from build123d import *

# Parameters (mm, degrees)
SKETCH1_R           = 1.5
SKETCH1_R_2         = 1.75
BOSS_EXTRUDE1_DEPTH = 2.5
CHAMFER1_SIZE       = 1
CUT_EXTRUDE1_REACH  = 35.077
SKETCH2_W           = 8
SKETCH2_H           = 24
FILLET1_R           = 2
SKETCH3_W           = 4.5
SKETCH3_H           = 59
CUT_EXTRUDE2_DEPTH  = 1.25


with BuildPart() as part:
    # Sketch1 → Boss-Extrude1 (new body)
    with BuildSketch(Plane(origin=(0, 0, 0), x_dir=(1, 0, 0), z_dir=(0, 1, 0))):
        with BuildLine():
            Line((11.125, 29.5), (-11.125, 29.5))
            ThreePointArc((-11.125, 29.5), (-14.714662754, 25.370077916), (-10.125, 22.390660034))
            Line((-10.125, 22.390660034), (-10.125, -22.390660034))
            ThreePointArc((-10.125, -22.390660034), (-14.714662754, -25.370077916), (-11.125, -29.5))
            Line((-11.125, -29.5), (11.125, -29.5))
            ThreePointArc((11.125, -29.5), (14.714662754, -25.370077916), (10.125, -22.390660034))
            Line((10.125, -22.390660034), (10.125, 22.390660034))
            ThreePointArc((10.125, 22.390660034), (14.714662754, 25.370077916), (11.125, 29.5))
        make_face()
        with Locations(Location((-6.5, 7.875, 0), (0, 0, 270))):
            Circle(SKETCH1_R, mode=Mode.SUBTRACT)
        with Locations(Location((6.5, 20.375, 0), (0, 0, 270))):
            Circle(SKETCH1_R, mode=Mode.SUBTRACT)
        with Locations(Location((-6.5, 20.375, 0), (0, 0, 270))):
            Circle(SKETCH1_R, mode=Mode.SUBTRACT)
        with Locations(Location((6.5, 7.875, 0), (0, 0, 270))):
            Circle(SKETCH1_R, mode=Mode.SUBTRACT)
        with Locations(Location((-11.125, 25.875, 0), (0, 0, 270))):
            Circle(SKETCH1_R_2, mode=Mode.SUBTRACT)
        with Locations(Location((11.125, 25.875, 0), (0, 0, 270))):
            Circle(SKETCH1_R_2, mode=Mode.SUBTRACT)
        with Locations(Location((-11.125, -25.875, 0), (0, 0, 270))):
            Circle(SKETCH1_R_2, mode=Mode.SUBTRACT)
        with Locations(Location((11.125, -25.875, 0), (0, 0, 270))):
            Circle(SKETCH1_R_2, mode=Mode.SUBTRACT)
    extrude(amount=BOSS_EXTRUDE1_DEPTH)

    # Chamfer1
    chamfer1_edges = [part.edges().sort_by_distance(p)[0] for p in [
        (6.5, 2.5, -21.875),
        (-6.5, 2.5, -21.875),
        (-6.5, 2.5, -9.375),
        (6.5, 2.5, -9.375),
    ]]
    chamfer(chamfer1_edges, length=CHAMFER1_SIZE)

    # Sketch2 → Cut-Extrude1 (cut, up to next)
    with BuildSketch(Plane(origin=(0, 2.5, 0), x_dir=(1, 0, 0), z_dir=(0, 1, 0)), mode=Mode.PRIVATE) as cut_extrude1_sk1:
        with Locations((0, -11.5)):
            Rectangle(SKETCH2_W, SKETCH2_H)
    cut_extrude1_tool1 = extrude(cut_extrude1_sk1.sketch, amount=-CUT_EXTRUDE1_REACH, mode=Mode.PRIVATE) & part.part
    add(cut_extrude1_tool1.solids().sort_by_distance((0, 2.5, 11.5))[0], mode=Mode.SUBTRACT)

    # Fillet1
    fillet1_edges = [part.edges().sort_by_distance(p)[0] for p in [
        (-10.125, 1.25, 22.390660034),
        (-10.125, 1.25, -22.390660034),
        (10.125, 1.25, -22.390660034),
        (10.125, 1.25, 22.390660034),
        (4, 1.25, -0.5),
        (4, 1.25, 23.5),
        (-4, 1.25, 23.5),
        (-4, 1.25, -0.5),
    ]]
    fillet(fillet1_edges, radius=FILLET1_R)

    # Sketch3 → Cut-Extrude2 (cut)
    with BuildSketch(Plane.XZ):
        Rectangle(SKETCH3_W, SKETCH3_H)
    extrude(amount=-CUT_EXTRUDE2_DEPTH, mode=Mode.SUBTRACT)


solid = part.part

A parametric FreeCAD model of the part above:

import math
import FreeCAD as App
import Part
import Sketcher
Q = App.Units.Quantity


def edges_at(feature, points):
    """Names of the edges that pass closest to the given points."""
    edges = feature.Shape.Edges
    near = lambda p: min(range(len(edges)), key=lambda i: edges[i].distToShape(Part.Vertex(*p))[0])
    return sorted({f"Edge{near(p) + 1}" for p in points})

doc = App.newDocument("Part")
body = doc.addObject("PartDesign::Body", "Body")

# Sketch on XZ plane
sketch1 = doc.addObject("Sketcher::SketchObject", "Sketch")
body.addObject(sketch1)
sketch1.AttachmentSupport = (doc.XZ_Plane, [""])
sketch1.MapMode = "FlatFace"
sketch1.addGeometry(Part.LineSegment(App.Vector(11.1, -29.5, 0), App.Vector(-11.1, -29.5, 0)), False)
sketch1.addGeometry(Part.ArcOfCircle(Part.Circle(App.Vector(-11.1, -25.9, 0), App.Vector(0, 0, 1), 3.6), math.radians(74), math.radians(270)), False)
sketch1.addGeometry(Part.LineSegment(App.Vector(-10.1, -22.4, 0), App.Vector(-10.1, 22.4, 0)), False)
sketch1.addGeometry(Part.ArcOfCircle(Part.Circle(App.Vector(-11.1, 25.9, 0), App.Vector(0, 0, 1), 3.6), math.radians(90), math.radians(286)), False)
sketch1.addGeometry(Part.LineSegment(App.Vector(-11.1, 29.5, 0), App.Vector(11.1, 29.5, 0)), False)
sketch1.addGeometry(Part.ArcOfCircle(Part.Circle(App.Vector(11.1, 25.9, 0), App.Vector(0, 0, 1), 3.6), math.radians(-106), math.radians(90)), False)
sketch1.addGeometry(Part.LineSegment(App.Vector(10.1, 22.4, 0), App.Vector(10.1, -22.4, 0)), False)
sketch1.addGeometry(Part.ArcOfCircle(Part.Circle(App.Vector(11.1, -25.9, 0), App.Vector(0, 0, 1), 3.6), math.radians(-90), math.radians(106)), False)
sketch1.addGeometry(Part.Circle(App.Vector(-11.1, 25.9, 0), App.Vector(0, 0, 1), 1.8), False)
sketch1.addGeometry(Part.Circle(App.Vector(11.1, 25.9, 0), App.Vector(0, 0, 1), 1.8), False)
sketch1.addGeometry(Part.Circle(App.Vector(-6.5, -7.9, 0), App.Vector(0, 0, 1), 1.5), False)
sketch1.addGeometry(Part.Circle(App.Vector(-6.5, -20.4, 0), App.Vector(0, 0, 1), 1.5), False)
sketch1.addGeometry(Part.Circle(App.Vector(-11.1, -25.9, 0), App.Vector(0, 0, 1), 1.8), False)
sketch1.addGeometry(Part.Circle(App.Vector(6.5, -7.9, 0), App.Vector(0, 0, 1), 1.5), False)
sketch1.addGeometry(Part.Circle(App.Vector(6.5, -20.4, 0), App.Vector(0, 0, 1), 1.5), False)
sketch1.addGeometry(Part.Circle(App.Vector(11.1, -25.9, 0), App.Vector(0, 0, 1), 1.8), False)
sketch1.addConstraint(Sketcher.Constraint("Tangent", 0, 2, 1, 2))
sketch1.addConstraint(Sketcher.Constraint("Coincident", 1, 1, 2, 1))
sketch1.addConstraint(Sketcher.Constraint("Coincident", 2, 2, 3, 2))
sketch1.addConstraint(Sketcher.Constraint("Tangent", 3, 1, 4, 1))
sketch1.addConstraint(Sketcher.Constraint("Tangent", 4, 2, 5, 2))
sketch1.addConstraint(Sketcher.Constraint("Coincident", 5, 1, 6, 1))
sketch1.addConstraint(Sketcher.Constraint("Coincident", 6, 2, 7, 2))
sketch1.addConstraint(Sketcher.Constraint("Tangent", 7, 1, 0, 1))
sketch1.addConstraint(Sketcher.Constraint("Horizontal", 0))
sketch1.addConstraint(Sketcher.Constraint("Vertical", 2))
sketch1.addConstraint(Sketcher.Constraint("Horizontal", 4))
sketch1.addConstraint(Sketcher.Constraint("Vertical", 6))
sketch1.addConstraint(Sketcher.Constraint("Coincident", 8, 3, 3, 3))
sketch1.addConstraint(Sketcher.Constraint("Coincident", 9, 3, 5, 3))
sketch1.addConstraint(Sketcher.Constraint("Coincident", 12, 3, 1, 3))
sketch1.addConstraint(Sketcher.Constraint("Coincident", 15, 3, 7, 3))
sketch1.addConstraint(Sketcher.Constraint("Equal", 1, 3))
sketch1.addConstraint(Sketcher.Constraint("Equal", 3, 5))
sketch1.addConstraint(Sketcher.Constraint("Equal", 5, 7))
sketch1.addConstraint(Sketcher.Constraint("Equal", 8, 9))
sketch1.addConstraint(Sketcher.Constraint("Equal", 10, 11))
sketch1.addConstraint(Sketcher.Constraint("Equal", 9, 12))
sketch1.addConstraint(Sketcher.Constraint("Equal", 11, 13))
sketch1.addConstraint(Sketcher.Constraint("Equal", 13, 14))
sketch1.addConstraint(Sketcher.Constraint("Equal", 12, 15))
sketch1.addConstraint(Sketcher.Constraint("Symmetric", 1, 3, 5, 3, -1, 1))
sketch1.addConstraint(Sketcher.Constraint("Symmetric", 2, 2, 6, 2, -1, 1))
sketch1.addConstraint(Sketcher.Constraint("Symmetric", 10, 3, 13, 3, -2))
sketch1.addConstraint(Sketcher.Constraint("Symmetric", 11, 3, 14, 3, -2))
sketch1.addConstraint(Sketcher.Constraint("Horizontal", 2, 2, 5, 1))
sketch1.addConstraint(Sketcher.Constraint("Vertical", 10, 3, 11, 3))
sketch1.addConstraint(Sketcher.Constraint("Diameter", 10, Q("3 mm")))
sketch1.addConstraint(Sketcher.Constraint("Diameter", 8, Q("3.5 mm")))
sketch1.addConstraint(Sketcher.Constraint("Radius", 1, Q("3.625 mm")))
sketch1.addConstraint(Sketcher.Constraint("DistanceY", 1, 3, 10, 3, Q("18 mm")))
sketch1.addConstraint(Sketcher.Constraint("DistanceX", 10, 3, 13, 3, Q("13 mm")))
sketch1.addConstraint(Sketcher.Constraint("DistanceX", 1, 3, 1, 1, Q("1 mm")))
sketch1.addConstraint(Sketcher.Constraint("DistanceX", 0, 2, 0, 1, Q("22.25 mm")))
sketch1.addConstraint(Sketcher.Constraint("DistanceY", 0, 2, -1, 1, Q("29.5 mm")))
sketch1.addConstraint(Sketcher.Constraint("DistanceY", 1, 3, 11, 3, Q("5.5 mm")))
pad1 = doc.addObject("PartDesign::Pad", "Pad")
body.addObject(pad1)
pad1.Profile = sketch1
pad1.Length = 2.5
pad1.Reversed = True
doc.recompute()

chamfer = doc.addObject("PartDesign::Chamfer", "Chamfer")
body.addObject(chamfer)
chamfer.Base = (pad1, edges_at(pad1, [
    (6.5, 2.5, -21.875),
    (-6.5, 2.5, -21.875),
    (-6.5, 2.5, -9.375),
    (6.5, 2.5, -9.375),
]))
chamfer.Size = 1

# Sketch on XZ plane
sketch2 = doc.addObject("Sketcher::SketchObject", "Sketch001")
body.addObject(sketch2)
sketch2.AttachmentSupport = (doc.XZ_Plane, [""])
sketch2.MapMode = "FlatFace"
sketch2.AttachmentOffset = App.Placement(App.Vector(0, 0, -2.5), App.Rotation())
sketch2.addGeometry(Part.LineSegment(App.Vector(-4, 0, 0), App.Vector(-4, 24, 0)), False)
sketch2.addGeometry(Part.LineSegment(App.Vector(-4, 24, 0), App.Vector(4, 24, 0)), False)
sketch2.addGeometry(Part.LineSegment(App.Vector(4, 24, 0), App.Vector(4, 0, 0)), False)
sketch2.addGeometry(Part.LineSegment(App.Vector(4, 0, 0), App.Vector(-4, 0, 0)), False)
sketch2.addConstraint(Sketcher.Constraint("Coincident", 0, 2, 1, 1))
sketch2.addConstraint(Sketcher.Constraint("Coincident", 1, 2, 2, 1))
sketch2.addConstraint(Sketcher.Constraint("Coincident", 2, 2, 3, 1))
sketch2.addConstraint(Sketcher.Constraint("Coincident", 3, 2, 0, 1))
sketch2.addConstraint(Sketcher.Constraint("Vertical", 0))
sketch2.addConstraint(Sketcher.Constraint("Horizontal", 1))
sketch2.addConstraint(Sketcher.Constraint("Vertical", 2))
sketch2.addConstraint(Sketcher.Constraint("Horizontal", 3))
sketch2.addConstraint(Sketcher.Constraint("DistanceX", 1, 1, 1, 2, Q("8 mm")))
sketch2.addConstraint(Sketcher.Constraint("DistanceY", 0, 1, 0, 2, Q("24 mm")))
sketch2.addConstraint(Sketcher.Constraint("DistanceX", 0, 2, -1, 1, Q("4 mm")))
sketch2.addConstraint(Sketcher.Constraint("DistanceY", -1, 1, 0, 2, Q("23.5 mm")))
pocket1 = doc.addObject("PartDesign::Pocket", "Pocket")
body.addObject(pocket1)
pocket1.Profile = sketch2
pocket1.Type = "UpToFirst"
pocket1.Reversed = True
doc.recompute()

fillet = doc.addObject("PartDesign::Fillet", "Fillet")
body.addObject(fillet)
fillet.Base = (pocket1, edges_at(pocket1, [
    (-10.125, 1.25, 22.391),
    (-10.125, 1.25, -22.391),
    (10.125, 1.25, -22.391),
    (10.125, 1.25, 22.391),
    (4, 1.25, -0.5),
    (4, 1.25, 23.5),
    (-4, 1.25, 23.5),
    (-4, 1.25, -0.5),
]))
fillet.Radius = 2

# Sketch on XZ plane
sketch3 = doc.addObject("Sketcher::SketchObject", "Sketch002")
body.addObject(sketch3)
sketch3.AttachmentSupport = (doc.XZ_Plane, [""])
sketch3.MapMode = "FlatFace"
sketch3.addGeometry(Part.LineSegment(App.Vector(-2.2, 29.5, 0), App.Vector(-2.2, -29.5, 0)), False)
sketch3.addGeometry(Part.LineSegment(App.Vector(-2.2, -29.5, 0), App.Vector(2.2, -29.5, 0)), False)
sketch3.addGeometry(Part.LineSegment(App.Vector(2.2, -29.5, 0), App.Vector(2.2, 29.5, 0)), False)
sketch3.addGeometry(Part.LineSegment(App.Vector(2.2, 29.5, 0), App.Vector(-2.2, 29.5, 0)), False)
sketch3.addConstraint(Sketcher.Constraint("Coincident", 0, 2, 1, 1))
sketch3.addConstraint(Sketcher.Constraint("Coincident", 1, 2, 2, 1))
sketch3.addConstraint(Sketcher.Constraint("Coincident", 2, 2, 3, 1))
sketch3.addConstraint(Sketcher.Constraint("Coincident", 3, 2, 0, 1))
sketch3.addConstraint(Sketcher.Constraint("Vertical", 0))
sketch3.addConstraint(Sketcher.Constraint("Horizontal", 1))
sketch3.addConstraint(Sketcher.Constraint("Vertical", 2))
sketch3.addConstraint(Sketcher.Constraint("Horizontal", 3))
sketch3.addConstraint(Sketcher.Constraint("Symmetric", 0, 2, 2, 2, -1, 1))
sketch3.addConstraint(Sketcher.Constraint("DistanceY", 0, 2, 0, 1, Q("59 mm")))
sketch3.addConstraint(Sketcher.Constraint("DistanceX", 1, 1, 1, 2, Q("4.5 mm")))
pocket2 = doc.addObject("PartDesign::Pocket", "Pocket001")
body.addObject(pocket2)
pocket2.Profile = sketch3
pocket2.Length = 1.25

doc.recompute()
